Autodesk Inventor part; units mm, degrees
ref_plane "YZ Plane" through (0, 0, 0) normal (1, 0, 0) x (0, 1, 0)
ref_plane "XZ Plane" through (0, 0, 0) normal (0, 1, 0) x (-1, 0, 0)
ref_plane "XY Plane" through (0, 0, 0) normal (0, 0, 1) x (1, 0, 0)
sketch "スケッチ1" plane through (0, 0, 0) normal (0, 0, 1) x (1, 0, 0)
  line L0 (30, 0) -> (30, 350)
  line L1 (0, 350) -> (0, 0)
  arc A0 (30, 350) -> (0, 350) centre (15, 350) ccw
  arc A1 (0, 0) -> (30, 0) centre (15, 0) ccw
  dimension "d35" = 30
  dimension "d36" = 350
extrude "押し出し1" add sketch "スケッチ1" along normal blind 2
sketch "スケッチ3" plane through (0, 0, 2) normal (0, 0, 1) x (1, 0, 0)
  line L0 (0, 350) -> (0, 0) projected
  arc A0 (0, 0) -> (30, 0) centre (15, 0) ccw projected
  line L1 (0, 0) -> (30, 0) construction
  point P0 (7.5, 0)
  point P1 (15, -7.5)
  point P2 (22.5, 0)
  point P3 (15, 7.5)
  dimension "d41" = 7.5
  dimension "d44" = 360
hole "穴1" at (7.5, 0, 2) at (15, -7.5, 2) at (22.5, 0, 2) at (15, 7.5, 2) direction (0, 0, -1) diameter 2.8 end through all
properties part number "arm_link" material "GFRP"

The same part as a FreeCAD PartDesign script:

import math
import FreeCAD as App
import Part
import Sketcher

doc = App.newDocument("Part")
body = doc.addObject("PartDesign::Body", "Body")

# Sketch on XY plane
sketch1 = body.newObject("Sketcher::SketchObject", "Sketch")
sketch1.AttachmentSupport = (doc.getObject("XY_Plane"), [""])
sketch1.MapMode = "FlatFace"
sketch1.addGeometry(Part.ArcOfCircle(Part.Circle(App.Vector(15, 0, 0), App.Vector(0, 0, 1), 15), math.radians(180), math.radians(360)), False)
sketch1.addGeometry(Part.LineSegment(App.Vector(30, 0, 0), App.Vector(30, 350, 0)), False)
sketch1.addGeometry(Part.ArcOfCircle(Part.Circle(App.Vector(15, 350, 0), App.Vector(0, 0, 1), 15), math.radians(0), math.radians(180)), False)
sketch1.addGeometry(Part.LineSegment(App.Vector(0, 350, 0), App.Vector(0, 0, 0)), False)
sketch1.addConstraint(Sketcher.Constraint("Tangent", 0, 2, 1, 1))
sketch1.addConstraint(Sketcher.Constraint("Tangent", 1, 2, 2, 1))
sketch1.addConstraint(Sketcher.Constraint("Tangent", 2, 2, 3, 1))
sketch1.addConstraint(Sketcher.Constraint("Tangent", 3, 2, 0, 1))
sketch1.addConstraint(Sketcher.Constraint("Vertical", 1))
sketch1.addConstraint(Sketcher.Constraint("Vertical", 3))
sketch1.addConstraint(Sketcher.Constraint("Coincident", 3, 2, -1, 1))
sketch1.addConstraint(Sketcher.Constraint("Radius", 0, 15.0))
sketch1.addConstraint(Sketcher.Constraint("DistanceY", 1, 1, 1, 2, 350.0))
pad1 = body.newObject("PartDesign::Pad", "Pad")
pad1.Profile = sketch1
pad1.Length = 2

# Sketch on XY plane
sketch2 = body.newObject("Sketcher::SketchObject", "Sketch001")
sketch2.AttachmentSupport = (doc.getObject("XY_Plane"), [""])
sketch2.MapMode = "FlatFace"
sketch2.AttachmentOffset = App.Placement(App.Vector(0, 0, 2), App.Rotation())
sketch2.addGeometry(Part.Circle(App.Vector(7.5, 0, 0), App.Vector(0, 0, 1), 1.4), False)
sketch2.addGeometry(Part.Circle(App.Vector(15, -7.5, 0), App.Vector(0, 0, 1), 1.4), False)
sketch2.addGeometry(Part.Circle(App.Vector(22.5, 0, 0), App.Vector(0, 0, 1), 1.4), False)
sketch2.addGeometry(Part.Circle(App.Vector(15, 7.5, 0), App.Vector(0, 0, 1), 1.4), False)
sketch2.addConstraint(Sketcher.Constraint("Equal", 0, 1))
sketch2.addConstraint(Sketcher.Constraint("Equal", 1, 2))
sketch2.addConstraint(Sketcher.Constraint("Equal", 2, 3))
sketch2.addConstraint(Sketcher.Constraint("Symmetric", 1, 3, 3, 3, -1))
sketch2.addConstraint(Sketcher.Constraint("PointOnObject", 0, 3, -1))
sketch2.addConstraint(Sketcher.Constraint("PointOnObject", 2, 3, -1))
sketch2.addConstraint(Sketcher.Constraint("Diameter", 0, 2.8))
sketch2.addConstraint(Sketcher.Constraint("DistanceX", -1, 1, 1, 3, 15.0))
sketch2.addConstraint(Sketcher.Constraint("DistanceX", 0, 3, 2, 3, 15.0))
sketch2.addConstraint(Sketcher.Constraint("DistanceY", 1, 3, 3, 3, 15.0))
sketch2.addConstraint(Sketcher.Constraint("DistanceX", -1, 1, 0, 3, 7.5))
doc.recompute()
hole = body.newObject("PartDesign::Hole", "Hole")
hole.Profile = sketch2
hole.ThreadType = "None"
hole.Diameter = 2.8
hole.DepthType = "ThroughAll"

doc.recompute()
